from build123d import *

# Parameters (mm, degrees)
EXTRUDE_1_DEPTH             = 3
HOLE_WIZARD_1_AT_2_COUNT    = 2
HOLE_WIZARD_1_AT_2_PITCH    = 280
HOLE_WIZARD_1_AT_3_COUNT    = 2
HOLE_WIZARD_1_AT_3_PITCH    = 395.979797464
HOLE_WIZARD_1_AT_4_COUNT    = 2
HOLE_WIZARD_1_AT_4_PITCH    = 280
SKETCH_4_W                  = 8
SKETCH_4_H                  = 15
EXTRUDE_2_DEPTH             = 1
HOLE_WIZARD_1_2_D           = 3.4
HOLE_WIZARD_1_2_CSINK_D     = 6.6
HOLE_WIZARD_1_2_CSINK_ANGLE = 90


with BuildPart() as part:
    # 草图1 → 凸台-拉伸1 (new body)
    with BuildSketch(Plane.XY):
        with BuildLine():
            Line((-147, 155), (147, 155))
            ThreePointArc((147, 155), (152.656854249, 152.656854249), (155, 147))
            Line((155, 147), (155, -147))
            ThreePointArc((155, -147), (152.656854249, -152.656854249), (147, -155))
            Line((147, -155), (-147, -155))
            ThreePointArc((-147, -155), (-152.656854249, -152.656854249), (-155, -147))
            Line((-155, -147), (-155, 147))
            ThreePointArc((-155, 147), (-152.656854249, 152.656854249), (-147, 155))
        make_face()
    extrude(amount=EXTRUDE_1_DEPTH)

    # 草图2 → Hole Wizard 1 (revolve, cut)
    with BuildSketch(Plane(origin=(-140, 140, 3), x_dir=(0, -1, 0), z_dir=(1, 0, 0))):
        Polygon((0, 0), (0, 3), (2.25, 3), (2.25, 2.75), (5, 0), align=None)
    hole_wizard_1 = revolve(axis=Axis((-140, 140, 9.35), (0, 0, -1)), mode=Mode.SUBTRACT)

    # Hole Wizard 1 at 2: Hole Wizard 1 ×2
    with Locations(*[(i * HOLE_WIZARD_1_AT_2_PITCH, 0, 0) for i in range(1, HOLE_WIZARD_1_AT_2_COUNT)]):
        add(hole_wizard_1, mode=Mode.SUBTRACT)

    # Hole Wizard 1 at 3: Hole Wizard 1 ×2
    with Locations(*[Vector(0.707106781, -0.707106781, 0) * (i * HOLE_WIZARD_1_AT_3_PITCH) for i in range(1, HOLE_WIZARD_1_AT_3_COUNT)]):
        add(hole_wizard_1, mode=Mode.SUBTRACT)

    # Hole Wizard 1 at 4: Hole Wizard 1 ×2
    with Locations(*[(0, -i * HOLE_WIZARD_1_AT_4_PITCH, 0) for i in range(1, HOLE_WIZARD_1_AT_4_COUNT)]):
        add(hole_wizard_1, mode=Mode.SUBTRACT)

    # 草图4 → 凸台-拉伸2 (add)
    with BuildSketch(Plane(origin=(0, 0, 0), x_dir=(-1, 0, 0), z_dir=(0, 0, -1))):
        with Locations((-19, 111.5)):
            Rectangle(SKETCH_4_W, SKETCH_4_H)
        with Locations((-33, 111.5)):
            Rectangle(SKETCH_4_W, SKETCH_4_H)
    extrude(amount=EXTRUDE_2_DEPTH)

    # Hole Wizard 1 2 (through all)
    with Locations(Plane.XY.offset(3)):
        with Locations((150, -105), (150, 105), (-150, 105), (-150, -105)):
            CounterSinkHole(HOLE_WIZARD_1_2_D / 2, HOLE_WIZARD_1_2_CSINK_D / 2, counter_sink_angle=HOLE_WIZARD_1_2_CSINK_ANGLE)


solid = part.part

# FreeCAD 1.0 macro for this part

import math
import FreeCAD as App
import Part
import Sketcher
Q = App.Units.Quantity

doc = App.newDocument("Part")
body = doc.addObject("PartDesign::Body", "Body")

sketch1 = doc.addObject("Sketcher::SketchObject", "Sketch")
body.addObject(sketch1)
sketch1.AttachmentSupport = (doc.XY_Plane, [""])
sketch1.MapMode = "FlatFace"
sketch1.addGeometry([
    Part.LineSegment(App.Vector(147, 155, 0), App.Vector(-147, 155, 0)),
    Part.ArcOfCircle(Part.Circle(App.Vector(-147, 147, 0), App.Vector(0, 0, 1), 8), math.radians(90), math.radians(180)),
    Part.LineSegment(App.Vector(-155, 147, 0), App.Vector(-155, -147, 0)),
    Part.ArcOfCircle(Part.Circle(App.Vector(-147, -147, 0), App.Vector(0, 0, 1), 8), math.radians(-180), math.radians(-90)),
    Part.LineSegment(App.Vector(-147, -155, 0), App.Vector(147, -155, 0)),
    Part.ArcOfCircle(Part.Circle(App.Vector(147, -147, 0), App.Vector(0, 0, 1), 8), math.radians(-90), math.radians(0)),
    Part.LineSegment(App.Vector(155, -147, 0), App.Vector(155, 147, 0)),
    Part.ArcOfCircle(Part.Circle(App.Vector(147, 147, 0), App.Vector(0, 0, 1), 8), math.radians(0), math.radians(90)),
], False)
sketch1.addConstraint([
    Sketcher.Constraint("Tangent", 0, 2, 1, 1),
    Sketcher.Constraint("Tangent", 1, 2, 2, 1),
    Sketcher.Constraint("Tangent", 2, 2, 3, 1),
    Sketcher.Constraint("Tangent", 3, 2, 4, 1),
    Sketcher.Constraint("Tangent", 4, 2, 5, 1),
    Sketcher.Constraint("Tangent", 5, 2, 6, 1),
    Sketcher.Constraint("Tangent", 6, 2, 7, 1),
    Sketcher.Constraint("Tangent", 7, 2, 0, 1),
    Sketcher.Constraint("Horizontal", 0),
    Sketcher.Constraint("Vertical", 2),
    Sketcher.Constraint("Horizontal", 4),
    Sketcher.Constraint("Vertical", 6),
    Sketcher.Constraint("Equal", 1, 3),
    Sketcher.Constraint("Equal", 3, 5),
    Sketcher.Constraint("Equal", 5, 7),
    Sketcher.Constraint("Symmetric", 1, 3, 5, 3, -1, 1),
    Sketcher.Constraint("Equal", 4, 2),
    Sketcher.Constraint("Radius", 1, 8.0),
    Sketcher.Constraint("DistanceX", 0, 2, 0, 1, 294.0),
])
pad1 = doc.addObject("PartDesign::Pad", "Pad")
body.addObject(pad1)
pad1.Profile = sketch1
pad1.Length = 3

sketch2 = doc.addObject("Sketcher::SketchObject", "Sketch001")
body.addObject(sketch2)
sketch2.AttachmentSupport = (doc.YZ_Plane, [""])
sketch2.MapMode = "FlatFace"
sketch2.AttachmentOffset = App.Placement(App.Vector(0, 0, -140), App.Rotation())
sketch2.addGeometry([
    Part.LineSegment(App.Vector(140, 0, 0), App.Vector(140, 3, 0)),
    Part.LineSegment(App.Vector(140, 3, 0), App.Vector(135, 3, 0)),
    Part.LineSegment(App.Vector(135, 3, 0), App.Vector(137.75, 0.25, 0)),
    Part.LineSegment(App.Vector(137.75, 0.25, 0), App.Vector(137.75, 0, 0)),
    Part.LineSegment(App.Vector(137.75, 0, 0), App.Vector(140, 0, 0)),
], False)
sketch2.addGeometry(Part.LineSegment(App.Vector(140, 3, 0), App.Vector(140, 0, 0)), True)
sketch2.addConstraint([
    Sketcher.Constraint("Coincident", 0, 2, 1, 1),
    Sketcher.Constraint("Coincident", 1, 2, 2, 1),
    Sketcher.Constraint("Coincident", 2, 2, 3, 1),
    Sketcher.Constraint("Coincident", 3, 2, 4, 1),
    Sketcher.Constraint("Coincident", 4, 2, 0, 1),
    Sketcher.Constraint("Vertical", 0),
    Sketcher.Constraint("Horizontal", 1),
    Sketcher.Constraint("Vertical", 3),
    Sketcher.Constraint("Horizontal", 4),
    Sketcher.Constraint("Vertical", 5),
    Sketcher.Constraint("Coincident", 5, 1, 0, 2),
    Sketcher.Constraint("PointOnObject", 3, 2, -1),
    Sketcher.Constraint("PointOnObject", 5, 2, -1),
    Sketcher.Constraint("DistanceX", 1, 2, 1, 1, 5.0),
    Sketcher.Constraint("DistanceY", 0, 1, 0, 2, 3.0),
    Sketcher.Constraint("Angle", 2, Q("-45 deg")),
    Sketcher.Constraint("DistanceX", -1, 1, 0, 2, 140.0),
    Sketcher.Constraint("DistanceX", 4, 1, 4, 2, 2.25),
])
groove = doc.addObject("PartDesign::Groove", "Groove")
body.addObject(groove)
groove.Profile = sketch2
groove.ReferenceAxis = (sketch2, ["Axis0"])
groove.Angle = 360
doc.recompute()

linearpattern = doc.addObject("PartDesign::LinearPattern", "LinearPattern")
body.addObject(linearpattern)
linearpattern.Originals = [groove]
linearpattern.Direction = (doc.X_Axis, [""])
linearpattern.Mode = "offset"
linearpattern.Offset = 280
linearpattern.Occurrences = 2
body.Tip = linearpattern
doc.recompute()

datumline = doc.addObject("PartDesign::Line", "DatumLine")
body.addObject(datumline)
datumline.Placement = App.Placement(App.Vector(0, 0, 0), App.Rotation(App.Vector(0, 0, 1), App.Vector(0.707106781, -0.707106781, 0)))
linearpattern2 = doc.addObject("PartDesign::LinearPattern", "LinearPattern001")
body.addObject(linearpattern2)
linearpattern2.Originals = [groove]
linearpattern2.Direction = (datumline, [""])
linearpattern2.Mode = "offset"
linearpattern2.Offset = 395.979797
linearpattern2.Occurrences = 2
body.Tip = linearpattern2
doc.recompute()

linearpattern3 = doc.addObject("PartDesign::LinearPattern", "LinearPattern002")
body.addObject(linearpattern3)
linearpattern3.Originals = [groove]
linearpattern3.Direction = (doc.Y_Axis, [""])
linearpattern3.Mode = "offset"
linearpattern3.Offset = 280
linearpattern3.Occurrences = 2
linearpattern3.Reversed = True
body.Tip = linearpattern3

sketch3 = doc.addObject("Sketcher::SketchObject", "Sketch002")
body.addObject(sketch3)
sketch3.AttachmentSupport = (doc.XY_Plane, [""])
sketch3.MapMode = "FlatFace"
sketch3.addGeometry([
    Part.LineSegment(App.Vector(23, 119, 0), App.Vector(23, 104, 0)),
    Part.LineSegment(App.Vector(23, 104, 0), App.Vector(15, 104, 0)),
    Part.LineSegment(App.Vector(15, 104, 0), App.Vector(15, 119, 0)),
    Part.LineSegment(App.Vector(15, 119, 0), App.Vector(23, 119, 0)),
    Part.LineSegment(App.Vector(37, 119, 0), App.Vector(37, 104, 0)),
    Part.LineSegment(App.Vector(37, 104, 0), App.Vector(29, 104, 0)),
    Part.LineSegment(App.Vector(29, 104, 0), App.Vector(29, 119, 0)),
    Part.LineSegment(App.Vector(29, 119, 0), App.Vector(37, 119, 0)),
], False)
sketch3.addConstraint([
    Sketcher.Constraint("Coincident", 0, 2, 1, 1),
    Sketcher.Constraint("Coincident", 1, 2, 2, 1),
    Sketcher.Constraint("Coincident", 2, 2, 3, 1),
    Sketcher.Constraint("Coincident", 3, 2, 0, 1),
    Sketcher.Constraint("Coincident", 4, 2, 5, 1),
    Sketcher.Constraint("Coincident", 5, 2, 6, 1),
    Sketcher.Constraint("Coincident", 6, 2, 7, 1),
    Sketcher.Constraint("Coincident", 7, 2, 4, 1),
    Sketcher.Constraint("Vertical", 0),
    Sketcher.Constraint("Horizontal", 1),
    Sketcher.Constraint("Vertical", 2),
    Sketcher.Constraint("Horizontal", 3),
    Sketcher.Constraint("Vertical", 4),
    Sketcher.Constraint("Horizontal", 5),
    Sketcher.Constraint("Vertical", 6),
    Sketcher.Constraint("Horizontal", 7),
    Sketcher.Constraint("Horizontal", 1, 2, 4, 2),
    Sketcher.Constraint("Horizontal", 3, 2, 6, 2),
    Sketcher.Constraint("Equal", 3, 5),
    Sketcher.Constraint("DistanceX", 1, 2, 1, 1, 8.0),
    Sketcher.Constraint("DistanceY", 0, 2, 0, 1, 15.0),
    Sketcher.Constraint("DistanceX", -1, 1, 0, 2, 23.0),
    Sketcher.Constraint("DistanceY", -1, 1, 0, 2, 104.0),
    Sketcher.Constraint("DistanceX", -1, 1, 4, 2, 37.0),
])
pad2 = doc.addObject("PartDesign::Pad", "Pad001")
body.addObject(pad2)
pad2.Profile = sketch3
pad2.Length = 1
pad2.Reversed = True

sketch4 = doc.addObject("Sketcher::SketchObject", "Sketch003")
body.addObject(sketch4)
sketch4.AttachmentSupport = (doc.XY_Plane, [""])
sketch4.MapMode = "FlatFace"
sketch4.AttachmentOffset = App.Placement(App.Vector(0, 0, 3), App.Rotation())
sketch4.addGeometry([
    Part.Circle(App.Vector(150, -105, 0), App.Vector(0, 0, 1), 1.7),
    Part.Circle(App.Vector(150, 105, 0), App.Vector(0, 0, 1), 1.7),
    Part.Circle(App.Vector(-150, 105, 0), App.Vector(0, 0, 1), 1.7),
    Part.Circle(App.Vector(-150, -105, 0), App.Vector(0, 0, 1), 1.7),
], False)
sketch4.addConstraint([
    Sketcher.Constraint("Equal", 0, 1),
    Sketcher.Constraint("Equal", 1, 2),
    Sketcher.Constraint("Equal", 2, 3),
    Sketcher.Constraint("Symmetric", 0, 3, 2, 3, -1, 1),
    Sketcher.Constraint("Symmetric", 1, 3, 3, 3, -1, 1),
    Sketcher.Constraint("Symmetric", 1, 3, 2, 3, -2),
    Sketcher.Constraint("Diameter", 0, 3.4),
    Sketcher.Constraint("DistanceX", -1, 1, 0, 3, 150.0),
    Sketcher.Constraint("DistanceY", 0, 3, -1, 1, 105.0),
])
doc.recompute()
hole = doc.addObject("PartDesign::Hole", "Hole")
body.addObject(hole)
hole.Profile = sketch4
hole.ThreadType = "None"
hole.Diameter = 3.4
hole.DepthType = "ThroughAll"
hole.HoleCutType = "Countersink"
hole.HoleCutDiameter = 6.6
hole.HoleCutCountersinkAngle = 90

doc.recompute()
